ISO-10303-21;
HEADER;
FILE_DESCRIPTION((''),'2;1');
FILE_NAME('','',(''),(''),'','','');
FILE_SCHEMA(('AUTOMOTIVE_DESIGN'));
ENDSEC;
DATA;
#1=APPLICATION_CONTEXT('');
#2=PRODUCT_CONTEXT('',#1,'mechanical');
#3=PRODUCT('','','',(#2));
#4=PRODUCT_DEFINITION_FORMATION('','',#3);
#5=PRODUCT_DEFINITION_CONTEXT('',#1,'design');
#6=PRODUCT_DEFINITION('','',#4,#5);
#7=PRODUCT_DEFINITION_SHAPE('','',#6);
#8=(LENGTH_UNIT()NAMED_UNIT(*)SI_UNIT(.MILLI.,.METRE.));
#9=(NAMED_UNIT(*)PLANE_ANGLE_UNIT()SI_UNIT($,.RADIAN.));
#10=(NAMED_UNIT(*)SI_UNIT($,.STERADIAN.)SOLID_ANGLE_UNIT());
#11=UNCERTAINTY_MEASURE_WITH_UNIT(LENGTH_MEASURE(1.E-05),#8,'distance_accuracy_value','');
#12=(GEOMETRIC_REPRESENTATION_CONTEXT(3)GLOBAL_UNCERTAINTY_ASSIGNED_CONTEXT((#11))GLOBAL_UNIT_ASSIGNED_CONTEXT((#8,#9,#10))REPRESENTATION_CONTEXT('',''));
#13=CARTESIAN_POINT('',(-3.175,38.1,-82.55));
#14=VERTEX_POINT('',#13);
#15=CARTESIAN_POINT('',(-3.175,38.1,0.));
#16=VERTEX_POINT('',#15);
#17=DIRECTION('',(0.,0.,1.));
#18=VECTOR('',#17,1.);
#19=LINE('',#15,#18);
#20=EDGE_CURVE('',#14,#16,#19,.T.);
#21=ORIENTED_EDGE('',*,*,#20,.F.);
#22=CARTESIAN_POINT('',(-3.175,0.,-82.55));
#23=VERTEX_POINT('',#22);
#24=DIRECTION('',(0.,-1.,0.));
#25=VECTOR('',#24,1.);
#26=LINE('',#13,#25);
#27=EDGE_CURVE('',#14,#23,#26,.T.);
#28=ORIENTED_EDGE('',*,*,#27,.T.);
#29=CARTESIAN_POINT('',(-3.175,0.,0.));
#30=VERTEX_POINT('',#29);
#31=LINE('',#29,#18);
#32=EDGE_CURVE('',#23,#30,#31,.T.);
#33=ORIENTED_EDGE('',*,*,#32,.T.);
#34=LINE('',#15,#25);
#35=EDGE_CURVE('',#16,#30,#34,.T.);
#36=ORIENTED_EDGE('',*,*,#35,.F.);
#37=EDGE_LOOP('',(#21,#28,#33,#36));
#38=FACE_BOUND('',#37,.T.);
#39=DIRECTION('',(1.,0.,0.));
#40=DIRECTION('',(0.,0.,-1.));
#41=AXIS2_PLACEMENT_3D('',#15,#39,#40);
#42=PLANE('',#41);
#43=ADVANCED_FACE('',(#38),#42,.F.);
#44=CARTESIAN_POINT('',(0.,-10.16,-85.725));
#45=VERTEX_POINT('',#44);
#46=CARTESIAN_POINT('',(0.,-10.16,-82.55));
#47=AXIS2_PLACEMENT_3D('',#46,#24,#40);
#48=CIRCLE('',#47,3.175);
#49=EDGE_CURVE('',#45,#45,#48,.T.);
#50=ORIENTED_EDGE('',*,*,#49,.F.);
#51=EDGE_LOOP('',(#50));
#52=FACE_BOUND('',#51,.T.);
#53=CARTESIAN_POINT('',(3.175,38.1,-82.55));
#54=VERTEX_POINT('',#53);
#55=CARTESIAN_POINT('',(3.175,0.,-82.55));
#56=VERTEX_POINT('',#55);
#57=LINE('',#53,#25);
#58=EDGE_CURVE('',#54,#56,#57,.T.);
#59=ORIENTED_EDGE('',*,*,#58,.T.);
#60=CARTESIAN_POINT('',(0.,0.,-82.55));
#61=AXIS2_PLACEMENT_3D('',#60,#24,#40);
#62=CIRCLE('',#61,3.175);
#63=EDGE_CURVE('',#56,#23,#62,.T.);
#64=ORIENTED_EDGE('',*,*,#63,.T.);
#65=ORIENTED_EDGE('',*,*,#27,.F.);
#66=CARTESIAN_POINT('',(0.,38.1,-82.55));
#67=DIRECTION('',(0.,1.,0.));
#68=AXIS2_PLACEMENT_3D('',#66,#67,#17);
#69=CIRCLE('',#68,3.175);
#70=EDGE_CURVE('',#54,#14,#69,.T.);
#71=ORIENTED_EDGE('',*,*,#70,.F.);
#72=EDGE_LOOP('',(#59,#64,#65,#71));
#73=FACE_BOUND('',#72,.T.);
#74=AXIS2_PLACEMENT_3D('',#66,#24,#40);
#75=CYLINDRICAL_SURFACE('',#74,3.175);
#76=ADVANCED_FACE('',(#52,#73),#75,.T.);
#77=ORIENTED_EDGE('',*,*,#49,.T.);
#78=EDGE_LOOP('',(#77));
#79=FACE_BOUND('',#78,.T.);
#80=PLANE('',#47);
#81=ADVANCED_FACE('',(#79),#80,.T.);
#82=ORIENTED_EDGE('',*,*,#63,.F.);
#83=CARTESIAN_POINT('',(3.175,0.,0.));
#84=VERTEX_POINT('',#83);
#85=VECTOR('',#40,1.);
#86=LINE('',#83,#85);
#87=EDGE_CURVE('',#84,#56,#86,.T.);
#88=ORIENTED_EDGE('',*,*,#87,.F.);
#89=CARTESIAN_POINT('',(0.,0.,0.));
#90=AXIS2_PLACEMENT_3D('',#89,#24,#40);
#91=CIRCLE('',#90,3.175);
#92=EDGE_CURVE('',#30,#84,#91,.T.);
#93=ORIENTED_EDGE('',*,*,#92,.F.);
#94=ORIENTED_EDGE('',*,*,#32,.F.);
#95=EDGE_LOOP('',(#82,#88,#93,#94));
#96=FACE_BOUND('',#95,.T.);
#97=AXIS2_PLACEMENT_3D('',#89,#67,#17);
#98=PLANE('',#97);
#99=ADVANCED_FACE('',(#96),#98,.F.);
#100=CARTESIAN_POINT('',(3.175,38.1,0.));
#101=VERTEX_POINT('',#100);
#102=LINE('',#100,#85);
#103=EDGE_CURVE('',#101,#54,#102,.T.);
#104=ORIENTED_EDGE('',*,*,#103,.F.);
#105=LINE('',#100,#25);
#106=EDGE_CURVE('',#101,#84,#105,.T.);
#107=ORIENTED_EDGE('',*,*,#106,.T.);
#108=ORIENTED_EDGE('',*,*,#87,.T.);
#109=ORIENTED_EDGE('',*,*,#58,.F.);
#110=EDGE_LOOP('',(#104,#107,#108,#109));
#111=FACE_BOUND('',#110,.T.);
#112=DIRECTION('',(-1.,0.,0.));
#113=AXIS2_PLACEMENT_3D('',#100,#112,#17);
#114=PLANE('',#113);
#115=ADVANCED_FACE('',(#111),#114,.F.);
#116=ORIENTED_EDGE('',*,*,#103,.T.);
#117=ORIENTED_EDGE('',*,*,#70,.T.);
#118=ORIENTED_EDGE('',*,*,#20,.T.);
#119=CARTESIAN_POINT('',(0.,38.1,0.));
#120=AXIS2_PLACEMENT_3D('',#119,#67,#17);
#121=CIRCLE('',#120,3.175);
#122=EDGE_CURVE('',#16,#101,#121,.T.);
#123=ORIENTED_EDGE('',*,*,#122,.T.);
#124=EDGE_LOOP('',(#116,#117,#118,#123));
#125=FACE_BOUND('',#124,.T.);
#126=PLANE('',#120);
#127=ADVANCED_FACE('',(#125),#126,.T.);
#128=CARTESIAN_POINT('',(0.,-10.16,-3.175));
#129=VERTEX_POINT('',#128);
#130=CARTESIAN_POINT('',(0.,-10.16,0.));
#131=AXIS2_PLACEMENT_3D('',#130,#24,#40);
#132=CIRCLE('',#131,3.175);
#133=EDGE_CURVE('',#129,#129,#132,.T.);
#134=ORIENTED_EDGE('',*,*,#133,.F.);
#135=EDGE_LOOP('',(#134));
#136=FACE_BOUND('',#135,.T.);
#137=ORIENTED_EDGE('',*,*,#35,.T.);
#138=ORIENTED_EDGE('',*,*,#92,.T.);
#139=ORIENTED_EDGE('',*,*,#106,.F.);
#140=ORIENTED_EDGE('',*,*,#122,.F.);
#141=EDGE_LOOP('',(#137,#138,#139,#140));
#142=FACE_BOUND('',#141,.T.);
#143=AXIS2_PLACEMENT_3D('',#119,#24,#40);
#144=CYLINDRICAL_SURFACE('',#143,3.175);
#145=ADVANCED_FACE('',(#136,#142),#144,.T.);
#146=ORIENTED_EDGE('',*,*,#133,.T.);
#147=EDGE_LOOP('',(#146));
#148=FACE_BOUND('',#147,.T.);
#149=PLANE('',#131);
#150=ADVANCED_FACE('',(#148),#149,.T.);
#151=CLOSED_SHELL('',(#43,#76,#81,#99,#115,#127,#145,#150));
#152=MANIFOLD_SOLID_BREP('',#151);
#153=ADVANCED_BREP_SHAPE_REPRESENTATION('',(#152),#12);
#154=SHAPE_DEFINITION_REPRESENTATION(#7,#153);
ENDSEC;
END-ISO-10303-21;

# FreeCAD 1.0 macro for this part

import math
import FreeCAD as App
import Part
import Sketcher
Q = App.Units.Quantity

doc = App.newDocument("Part")
body = doc.addObject("PartDesign::Body", "Body")

sketch1 = doc.addObject("Sketcher::SketchObject", "Sketch")
body.addObject(sketch1)
sketch1.AttachmentSupport = (doc.XZ_Plane, [""])
sketch1.MapMode = "FlatFace"
sketch1.addGeometry([
    Part.LineSegment(App.Vector(-3.175, -82.55, 0), App.Vector(-3.175, 0, 0)),
    Part.ArcOfCircle(Part.Circle(App.Vector(0, 0, 0), App.Vector(0, 0, 1), 3.175), math.radians(0), math.radians(180)),
    Part.LineSegment(App.Vector(3.175, 0, 0), App.Vector(3.175, -82.55, 0)),
    Part.ArcOfCircle(Part.Circle(App.Vector(0, -82.55, 0), App.Vector(0, 0, 1), 3.175), math.radians(180), math.radians(360)),
], False)
sketch1.addConstraint([
    Sketcher.Constraint("Tangent", 0, 2, 1, 2),
    Sketcher.Constraint("Tangent", 1, 1, 2, 1),
    Sketcher.Constraint("Tangent", 2, 2, 3, 2),
    Sketcher.Constraint("Tangent", 3, 1, 0, 1),
    Sketcher.Constraint("Vertical", 0),
    Sketcher.Constraint("Vertical", 2),
    Sketcher.Constraint("Coincident", 1, 3, -1, 1),
    Sketcher.Constraint("Radius", 1, Q("0.125 in")),
    Sketcher.Constraint("DistanceY", 0, 1, 0, 2, Q("3.25 in")),
])
pad1 = doc.addObject("PartDesign::Pad", "Pad")
body.addObject(pad1)
pad1.Profile = sketch1
pad1.Length = Q("1.5 in")
pad1.Reversed = True

sketch2 = doc.addObject("Sketcher::SketchObject", "Sketch001")
body.addObject(sketch2)
sketch2.AttachmentSupport = (doc.XZ_Plane, [""])
sketch2.MapMode = "FlatFace"
sketch2.AttachmentOffset = App.Placement(App.Vector(0, 0, 0.4 * 25.4), App.Rotation())
sketch2.addGeometry([
    Part.Circle(App.Vector(0, -82.55, 0), App.Vector(0, 0, 1), 3.175),
    Part.Circle(App.Vector(0, 0, 0), App.Vector(0, 0, 1), 3.175),
], False)
sketch2.addConstraint([
    Sketcher.Constraint("Coincident", 1, 3, -1, 1),
    Sketcher.Constraint("Equal", 0, 1),
    Sketcher.Constraint("PointOnObject", 0, 3, -2),
    Sketcher.Constraint("Diameter", 0, Q("0.25 in")),
    Sketcher.Constraint("DistanceY", 0, 3, -1, 1, Q("3.25 in")),
])
pad2 = doc.addObject("PartDesign::Pad", "Pad001")
body.addObject(pad2)
pad2.Profile = sketch2
pad2.Length = Q("0.4 in")
pad2.Reversed = True

doc.recompute()
